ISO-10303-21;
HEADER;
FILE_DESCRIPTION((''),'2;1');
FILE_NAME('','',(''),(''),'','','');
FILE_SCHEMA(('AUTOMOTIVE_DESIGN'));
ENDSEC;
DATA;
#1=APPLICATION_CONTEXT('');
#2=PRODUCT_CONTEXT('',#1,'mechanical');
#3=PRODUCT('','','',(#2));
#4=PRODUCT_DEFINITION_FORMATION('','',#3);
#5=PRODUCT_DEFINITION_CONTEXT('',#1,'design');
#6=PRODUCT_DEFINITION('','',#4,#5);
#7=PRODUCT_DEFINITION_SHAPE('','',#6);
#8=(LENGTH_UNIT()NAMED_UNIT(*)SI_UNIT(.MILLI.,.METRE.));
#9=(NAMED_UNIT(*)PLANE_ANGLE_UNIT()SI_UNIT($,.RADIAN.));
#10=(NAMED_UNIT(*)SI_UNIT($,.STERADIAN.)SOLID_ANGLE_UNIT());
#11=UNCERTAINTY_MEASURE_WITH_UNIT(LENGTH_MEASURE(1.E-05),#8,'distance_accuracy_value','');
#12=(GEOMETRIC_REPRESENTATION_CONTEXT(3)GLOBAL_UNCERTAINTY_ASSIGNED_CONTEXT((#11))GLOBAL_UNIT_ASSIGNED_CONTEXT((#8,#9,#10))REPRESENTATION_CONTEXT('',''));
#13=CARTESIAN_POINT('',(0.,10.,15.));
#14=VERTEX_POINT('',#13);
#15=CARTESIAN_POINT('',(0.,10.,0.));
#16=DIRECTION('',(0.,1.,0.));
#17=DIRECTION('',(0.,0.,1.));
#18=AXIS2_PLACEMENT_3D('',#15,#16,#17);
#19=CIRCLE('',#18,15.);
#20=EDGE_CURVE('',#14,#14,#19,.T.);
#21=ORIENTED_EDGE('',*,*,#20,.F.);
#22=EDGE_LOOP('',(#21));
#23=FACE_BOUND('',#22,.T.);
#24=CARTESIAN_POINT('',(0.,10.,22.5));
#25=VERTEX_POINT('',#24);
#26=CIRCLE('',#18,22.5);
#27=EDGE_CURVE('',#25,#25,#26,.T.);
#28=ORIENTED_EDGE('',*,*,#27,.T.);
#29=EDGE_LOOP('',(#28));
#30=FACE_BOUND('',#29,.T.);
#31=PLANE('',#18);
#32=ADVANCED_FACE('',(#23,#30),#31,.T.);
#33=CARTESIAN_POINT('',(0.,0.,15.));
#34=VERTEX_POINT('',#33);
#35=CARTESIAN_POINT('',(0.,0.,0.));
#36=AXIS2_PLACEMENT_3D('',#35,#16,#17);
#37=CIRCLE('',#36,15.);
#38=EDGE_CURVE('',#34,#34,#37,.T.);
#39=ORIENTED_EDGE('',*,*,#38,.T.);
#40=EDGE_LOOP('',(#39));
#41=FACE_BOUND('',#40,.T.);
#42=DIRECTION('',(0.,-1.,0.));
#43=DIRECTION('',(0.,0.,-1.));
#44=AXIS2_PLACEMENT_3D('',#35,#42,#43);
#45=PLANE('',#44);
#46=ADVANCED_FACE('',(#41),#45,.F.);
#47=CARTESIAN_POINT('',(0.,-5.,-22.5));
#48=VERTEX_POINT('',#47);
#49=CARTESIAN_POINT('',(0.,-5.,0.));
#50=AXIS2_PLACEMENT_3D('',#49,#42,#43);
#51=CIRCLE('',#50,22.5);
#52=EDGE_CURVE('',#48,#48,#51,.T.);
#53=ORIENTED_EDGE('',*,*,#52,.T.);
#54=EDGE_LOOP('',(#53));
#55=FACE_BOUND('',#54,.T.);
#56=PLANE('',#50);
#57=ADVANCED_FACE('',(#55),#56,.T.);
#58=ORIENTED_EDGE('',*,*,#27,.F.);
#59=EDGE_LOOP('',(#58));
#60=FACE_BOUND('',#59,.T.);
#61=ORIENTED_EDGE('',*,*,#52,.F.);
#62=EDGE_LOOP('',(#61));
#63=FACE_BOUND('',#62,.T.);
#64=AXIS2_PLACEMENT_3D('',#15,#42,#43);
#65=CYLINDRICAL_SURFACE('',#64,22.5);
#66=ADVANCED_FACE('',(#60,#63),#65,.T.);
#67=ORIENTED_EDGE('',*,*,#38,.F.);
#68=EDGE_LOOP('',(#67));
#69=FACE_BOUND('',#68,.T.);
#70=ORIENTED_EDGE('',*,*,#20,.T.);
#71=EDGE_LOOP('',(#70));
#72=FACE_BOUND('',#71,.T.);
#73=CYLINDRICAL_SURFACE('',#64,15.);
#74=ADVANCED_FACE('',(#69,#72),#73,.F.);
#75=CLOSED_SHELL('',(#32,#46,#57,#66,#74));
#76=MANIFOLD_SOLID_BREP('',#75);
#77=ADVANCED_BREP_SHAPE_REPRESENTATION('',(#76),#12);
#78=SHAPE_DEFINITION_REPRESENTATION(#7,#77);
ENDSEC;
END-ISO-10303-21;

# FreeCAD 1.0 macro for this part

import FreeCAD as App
import Part
import Sketcher
from FreeCAD import Vector

doc = App.newDocument("Part")
body = doc.addObject("PartDesign::Body", "Body")

# Sketch on XZ plane
sketch1 = doc.addObject("Sketcher::SketchObject", "Sketch")
body.addObject(sketch1)
sketch1.AttachmentSupport = (doc.XZ_Plane, [""])
sketch1.MapMode = "FlatFace"
sketch1.addGeometry([
    Part.Circle(Vector(0, 0, 0), Vector(0, 0, 1), 22.5),
    Part.Circle(Vector(0, 0, 0), Vector(0, 0, 1), 15),
], False)
sketch1.addConstraint([
    Sketcher.Constraint("Coincident", 0, 3, -1, 1),
    Sketcher.Constraint("Coincident", 1, 3, -1, 1),
    Sketcher.Constraint("Diameter", 0, 45.0),
    Sketcher.Constraint("Diameter", 1, 30.0),
])
pad1 = doc.addObject("PartDesign::Pad", "Pad")
body.addObject(pad1)
pad1.Profile = sketch1
pad1.Length = 10
pad1.Reversed = True

# Sketch on XZ plane
sketch2 = doc.addObject("Sketcher::SketchObject", "Sketch001")
body.addObject(sketch2)
sketch2.AttachmentSupport = (doc.XZ_Plane, [""])
sketch2.MapMode = "FlatFace"
sketch2.addGeometry(Part.Circle(Vector(0, 0, 0), Vector(0, 0, 1), 22.5), False)
sketch2.addConstraint([
    Sketcher.Constraint("Coincident", 0, 3, -1, 1),
    Sketcher.Constraint("Diameter", 0, 45.0),
])
pad2 = doc.addObject("PartDesign::Pad", "Pad001")
body.addObject(pad2)
pad2.Profile = sketch2
pad2.Length = 5

doc.recompute()
